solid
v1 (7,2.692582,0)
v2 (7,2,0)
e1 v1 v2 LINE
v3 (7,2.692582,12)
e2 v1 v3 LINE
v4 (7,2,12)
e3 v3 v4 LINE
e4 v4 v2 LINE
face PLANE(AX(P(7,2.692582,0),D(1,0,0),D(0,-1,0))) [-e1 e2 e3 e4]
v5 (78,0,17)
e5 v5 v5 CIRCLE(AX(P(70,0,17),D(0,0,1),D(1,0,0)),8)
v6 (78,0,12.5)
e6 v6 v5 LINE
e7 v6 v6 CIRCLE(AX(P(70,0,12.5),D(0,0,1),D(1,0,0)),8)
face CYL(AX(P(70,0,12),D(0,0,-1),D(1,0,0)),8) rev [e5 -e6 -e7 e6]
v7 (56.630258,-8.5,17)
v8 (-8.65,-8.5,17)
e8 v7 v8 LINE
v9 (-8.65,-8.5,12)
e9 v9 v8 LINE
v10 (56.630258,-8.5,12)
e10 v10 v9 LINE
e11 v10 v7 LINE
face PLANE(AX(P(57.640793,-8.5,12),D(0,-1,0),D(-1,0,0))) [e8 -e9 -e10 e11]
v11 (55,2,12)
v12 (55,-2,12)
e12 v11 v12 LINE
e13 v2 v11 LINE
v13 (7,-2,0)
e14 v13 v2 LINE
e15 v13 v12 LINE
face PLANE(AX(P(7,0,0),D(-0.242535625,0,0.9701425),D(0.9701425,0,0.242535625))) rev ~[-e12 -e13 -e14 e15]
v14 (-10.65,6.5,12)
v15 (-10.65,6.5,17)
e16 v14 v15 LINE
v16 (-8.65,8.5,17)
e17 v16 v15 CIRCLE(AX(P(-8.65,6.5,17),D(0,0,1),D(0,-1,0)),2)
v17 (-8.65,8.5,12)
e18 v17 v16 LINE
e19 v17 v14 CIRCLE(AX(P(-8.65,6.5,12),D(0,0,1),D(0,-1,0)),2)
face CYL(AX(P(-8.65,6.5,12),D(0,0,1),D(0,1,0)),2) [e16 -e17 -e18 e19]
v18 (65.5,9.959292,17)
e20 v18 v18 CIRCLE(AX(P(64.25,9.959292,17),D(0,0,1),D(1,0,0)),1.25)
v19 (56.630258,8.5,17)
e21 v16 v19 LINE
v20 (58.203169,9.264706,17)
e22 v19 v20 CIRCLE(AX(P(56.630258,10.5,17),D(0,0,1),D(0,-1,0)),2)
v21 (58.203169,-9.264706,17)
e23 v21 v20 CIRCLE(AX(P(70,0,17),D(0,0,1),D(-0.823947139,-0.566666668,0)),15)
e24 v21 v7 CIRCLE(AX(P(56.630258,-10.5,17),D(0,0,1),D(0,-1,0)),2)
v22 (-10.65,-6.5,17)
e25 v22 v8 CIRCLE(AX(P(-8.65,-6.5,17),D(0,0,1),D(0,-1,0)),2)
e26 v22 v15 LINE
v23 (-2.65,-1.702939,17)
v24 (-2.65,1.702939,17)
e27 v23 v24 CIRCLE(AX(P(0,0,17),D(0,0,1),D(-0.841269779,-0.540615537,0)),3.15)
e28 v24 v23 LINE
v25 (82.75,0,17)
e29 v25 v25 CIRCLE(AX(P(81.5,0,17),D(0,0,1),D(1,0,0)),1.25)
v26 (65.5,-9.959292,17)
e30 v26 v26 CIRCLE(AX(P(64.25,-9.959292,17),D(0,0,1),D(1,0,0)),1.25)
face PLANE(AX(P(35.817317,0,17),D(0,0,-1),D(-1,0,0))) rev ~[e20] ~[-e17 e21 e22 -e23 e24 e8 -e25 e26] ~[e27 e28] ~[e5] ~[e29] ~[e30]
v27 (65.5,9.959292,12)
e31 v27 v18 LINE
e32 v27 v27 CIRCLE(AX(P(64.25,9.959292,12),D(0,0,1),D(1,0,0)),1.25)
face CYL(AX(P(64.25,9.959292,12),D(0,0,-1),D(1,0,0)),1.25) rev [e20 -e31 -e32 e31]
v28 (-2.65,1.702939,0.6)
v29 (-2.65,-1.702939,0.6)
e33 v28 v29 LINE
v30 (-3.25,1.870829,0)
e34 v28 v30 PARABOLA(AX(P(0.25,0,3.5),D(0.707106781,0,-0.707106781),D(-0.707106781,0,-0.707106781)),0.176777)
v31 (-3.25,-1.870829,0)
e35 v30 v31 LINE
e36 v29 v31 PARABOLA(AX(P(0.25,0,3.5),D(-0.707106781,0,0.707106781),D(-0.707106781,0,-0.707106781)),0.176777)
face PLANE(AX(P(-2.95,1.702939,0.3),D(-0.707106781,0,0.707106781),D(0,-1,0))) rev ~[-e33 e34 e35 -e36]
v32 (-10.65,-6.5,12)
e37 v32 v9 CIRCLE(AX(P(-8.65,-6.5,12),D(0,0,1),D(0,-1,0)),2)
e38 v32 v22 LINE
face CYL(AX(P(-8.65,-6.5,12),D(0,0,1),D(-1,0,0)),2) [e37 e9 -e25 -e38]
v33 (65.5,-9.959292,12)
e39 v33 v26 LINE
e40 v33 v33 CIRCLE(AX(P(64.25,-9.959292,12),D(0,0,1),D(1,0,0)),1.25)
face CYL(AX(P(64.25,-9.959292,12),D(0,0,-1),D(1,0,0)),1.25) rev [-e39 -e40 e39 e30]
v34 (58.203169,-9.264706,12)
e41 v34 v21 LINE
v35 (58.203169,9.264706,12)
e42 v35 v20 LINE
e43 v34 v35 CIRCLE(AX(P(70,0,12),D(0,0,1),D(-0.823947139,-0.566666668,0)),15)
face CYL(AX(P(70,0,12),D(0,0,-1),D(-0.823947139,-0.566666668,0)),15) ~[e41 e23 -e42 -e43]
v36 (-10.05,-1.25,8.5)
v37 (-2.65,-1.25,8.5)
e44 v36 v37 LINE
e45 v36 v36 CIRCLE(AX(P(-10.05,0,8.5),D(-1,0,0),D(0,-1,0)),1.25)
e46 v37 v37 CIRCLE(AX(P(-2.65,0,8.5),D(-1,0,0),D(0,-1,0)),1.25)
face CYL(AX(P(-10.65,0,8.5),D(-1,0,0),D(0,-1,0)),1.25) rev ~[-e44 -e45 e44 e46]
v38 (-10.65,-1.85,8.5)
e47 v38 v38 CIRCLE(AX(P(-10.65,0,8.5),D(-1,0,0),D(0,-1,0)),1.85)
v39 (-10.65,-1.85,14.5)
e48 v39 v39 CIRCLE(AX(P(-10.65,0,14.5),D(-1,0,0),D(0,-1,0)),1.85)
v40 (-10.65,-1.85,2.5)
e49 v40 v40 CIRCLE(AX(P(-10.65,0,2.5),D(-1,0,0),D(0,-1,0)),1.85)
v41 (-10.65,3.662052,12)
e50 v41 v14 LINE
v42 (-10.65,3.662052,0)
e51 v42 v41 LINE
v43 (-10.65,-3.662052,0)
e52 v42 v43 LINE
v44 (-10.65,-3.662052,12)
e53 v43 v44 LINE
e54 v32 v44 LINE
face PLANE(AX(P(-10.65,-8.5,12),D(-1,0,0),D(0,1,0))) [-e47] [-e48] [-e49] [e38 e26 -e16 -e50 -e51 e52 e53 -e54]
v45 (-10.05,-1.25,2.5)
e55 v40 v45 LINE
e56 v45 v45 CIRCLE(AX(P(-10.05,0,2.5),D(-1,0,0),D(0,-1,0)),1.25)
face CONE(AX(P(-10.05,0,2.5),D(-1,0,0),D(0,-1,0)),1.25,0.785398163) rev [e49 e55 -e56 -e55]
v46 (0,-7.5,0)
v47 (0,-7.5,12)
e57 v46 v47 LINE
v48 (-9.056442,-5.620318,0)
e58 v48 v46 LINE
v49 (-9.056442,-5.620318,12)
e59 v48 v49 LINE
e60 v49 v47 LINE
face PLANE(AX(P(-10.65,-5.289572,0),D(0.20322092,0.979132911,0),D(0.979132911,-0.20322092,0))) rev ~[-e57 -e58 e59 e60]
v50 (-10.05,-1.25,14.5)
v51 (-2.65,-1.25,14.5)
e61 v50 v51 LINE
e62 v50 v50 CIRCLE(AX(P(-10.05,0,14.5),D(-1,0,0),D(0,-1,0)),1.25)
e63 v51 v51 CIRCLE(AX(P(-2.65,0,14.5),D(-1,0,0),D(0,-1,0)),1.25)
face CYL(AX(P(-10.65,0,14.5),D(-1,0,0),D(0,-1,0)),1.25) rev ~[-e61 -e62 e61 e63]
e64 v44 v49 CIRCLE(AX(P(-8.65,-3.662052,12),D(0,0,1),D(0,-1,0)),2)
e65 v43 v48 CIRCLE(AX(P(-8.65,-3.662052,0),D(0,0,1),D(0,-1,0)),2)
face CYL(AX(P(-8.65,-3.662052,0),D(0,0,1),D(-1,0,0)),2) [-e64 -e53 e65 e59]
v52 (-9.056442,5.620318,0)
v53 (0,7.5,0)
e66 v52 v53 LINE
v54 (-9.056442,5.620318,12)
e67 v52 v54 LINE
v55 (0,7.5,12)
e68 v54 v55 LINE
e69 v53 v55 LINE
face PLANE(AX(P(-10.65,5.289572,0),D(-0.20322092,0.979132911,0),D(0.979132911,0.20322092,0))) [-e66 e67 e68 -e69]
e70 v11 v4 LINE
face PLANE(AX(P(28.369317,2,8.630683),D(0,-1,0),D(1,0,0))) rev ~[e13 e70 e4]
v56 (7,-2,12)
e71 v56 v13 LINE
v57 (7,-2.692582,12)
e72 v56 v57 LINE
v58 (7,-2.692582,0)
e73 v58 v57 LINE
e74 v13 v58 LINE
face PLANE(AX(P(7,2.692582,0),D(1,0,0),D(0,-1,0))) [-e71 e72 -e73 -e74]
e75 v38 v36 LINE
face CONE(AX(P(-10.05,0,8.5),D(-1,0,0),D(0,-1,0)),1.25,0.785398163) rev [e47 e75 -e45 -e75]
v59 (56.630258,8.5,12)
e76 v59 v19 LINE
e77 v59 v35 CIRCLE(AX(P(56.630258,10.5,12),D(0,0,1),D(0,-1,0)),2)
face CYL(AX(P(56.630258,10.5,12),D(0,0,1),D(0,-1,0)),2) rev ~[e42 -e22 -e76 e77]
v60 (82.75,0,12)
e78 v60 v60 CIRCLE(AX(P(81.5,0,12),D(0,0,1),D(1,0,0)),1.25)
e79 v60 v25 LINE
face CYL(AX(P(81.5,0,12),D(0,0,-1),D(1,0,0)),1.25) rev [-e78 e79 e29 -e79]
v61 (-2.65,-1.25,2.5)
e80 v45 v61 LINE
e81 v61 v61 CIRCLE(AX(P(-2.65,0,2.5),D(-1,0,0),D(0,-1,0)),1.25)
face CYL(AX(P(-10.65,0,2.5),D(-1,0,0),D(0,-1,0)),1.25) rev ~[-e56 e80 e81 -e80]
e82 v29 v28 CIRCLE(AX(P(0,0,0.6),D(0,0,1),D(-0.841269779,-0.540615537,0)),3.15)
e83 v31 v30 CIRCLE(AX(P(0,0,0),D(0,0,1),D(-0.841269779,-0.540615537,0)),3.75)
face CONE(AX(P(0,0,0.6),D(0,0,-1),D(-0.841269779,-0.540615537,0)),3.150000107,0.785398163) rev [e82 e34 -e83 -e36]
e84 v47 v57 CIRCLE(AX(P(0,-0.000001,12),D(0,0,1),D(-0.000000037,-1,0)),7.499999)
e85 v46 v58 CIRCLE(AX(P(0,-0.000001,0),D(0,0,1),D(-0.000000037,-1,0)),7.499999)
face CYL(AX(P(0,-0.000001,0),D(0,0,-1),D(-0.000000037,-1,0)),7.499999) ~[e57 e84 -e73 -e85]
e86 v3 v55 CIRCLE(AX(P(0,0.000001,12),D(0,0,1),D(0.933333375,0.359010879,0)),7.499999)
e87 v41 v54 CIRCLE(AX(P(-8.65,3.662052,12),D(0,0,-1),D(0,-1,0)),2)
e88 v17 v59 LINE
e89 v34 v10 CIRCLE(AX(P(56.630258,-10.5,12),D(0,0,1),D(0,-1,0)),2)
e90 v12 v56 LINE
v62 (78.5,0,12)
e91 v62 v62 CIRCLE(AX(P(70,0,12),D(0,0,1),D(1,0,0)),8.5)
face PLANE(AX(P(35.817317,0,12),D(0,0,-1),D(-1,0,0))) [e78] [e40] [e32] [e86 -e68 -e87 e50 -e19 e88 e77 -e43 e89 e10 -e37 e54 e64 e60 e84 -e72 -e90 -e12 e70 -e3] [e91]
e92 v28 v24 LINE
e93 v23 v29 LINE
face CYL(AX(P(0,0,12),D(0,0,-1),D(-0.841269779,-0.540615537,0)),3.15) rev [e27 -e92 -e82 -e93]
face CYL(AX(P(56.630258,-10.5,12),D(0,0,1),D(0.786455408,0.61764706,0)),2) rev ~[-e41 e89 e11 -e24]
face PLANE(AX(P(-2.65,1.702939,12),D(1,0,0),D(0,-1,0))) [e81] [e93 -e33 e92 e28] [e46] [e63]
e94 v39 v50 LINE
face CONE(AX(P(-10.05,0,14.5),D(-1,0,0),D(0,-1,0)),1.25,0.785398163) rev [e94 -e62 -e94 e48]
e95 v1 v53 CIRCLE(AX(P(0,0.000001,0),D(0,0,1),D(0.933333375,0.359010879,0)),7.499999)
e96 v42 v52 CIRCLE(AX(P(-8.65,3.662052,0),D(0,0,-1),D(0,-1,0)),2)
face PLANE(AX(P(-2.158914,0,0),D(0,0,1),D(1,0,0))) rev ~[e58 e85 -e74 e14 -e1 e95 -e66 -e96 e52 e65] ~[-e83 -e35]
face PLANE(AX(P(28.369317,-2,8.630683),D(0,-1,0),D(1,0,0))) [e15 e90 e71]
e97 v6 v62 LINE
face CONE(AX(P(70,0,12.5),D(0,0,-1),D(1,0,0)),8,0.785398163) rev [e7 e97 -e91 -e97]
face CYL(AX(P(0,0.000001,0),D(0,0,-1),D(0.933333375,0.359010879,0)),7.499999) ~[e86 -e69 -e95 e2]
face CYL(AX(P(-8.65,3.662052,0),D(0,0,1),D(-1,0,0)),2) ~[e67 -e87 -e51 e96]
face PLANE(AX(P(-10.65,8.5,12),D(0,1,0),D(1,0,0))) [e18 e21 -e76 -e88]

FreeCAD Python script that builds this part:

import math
import FreeCAD as App
import Part
import Sketcher

V = App.Vector
Q = App.Units.Quantity


def edges_at(feature, points):
    """Names of the edges that pass closest to the given points."""
    edges = feature.Shape.Edges
    near = lambda p: min(range(len(edges)), key=lambda i: edges[i].distToShape(Part.Vertex(*p))[0])
    return sorted({f"Edge{near(p) + 1}" for p in points})

doc = App.newDocument("Part")
body = doc.addObject("PartDesign::Body", "Body")

sketch1 = body.newObject("Sketcher::SketchObject", "Sketch")
sketch1.AttachmentSupport = (doc.getObject("XY_Plane"), [""])
sketch1.MapMode = "FlatFace"
sketch1.addGeometry([
    Part.ArcOfCircle(Part.Circle(V(0, 0, 0), V(0, 0, 1), 7.5), math.radians(-90), math.radians(-21)),
    Part.LineSegment(V(7, -2.7, 0), V(7, 2.7, 0)),
    Part.ArcOfCircle(Part.Circle(V(0, 0, 0), V(0, 0, 1), 7.5), math.radians(21), math.radians(90)),
    Part.LineSegment(V(0, 7.5, 0), V(-10.7, 5.3, 0)),
    Part.LineSegment(V(-10.7, 5.3, 0), V(-10.7, -5.3, 0)),
    Part.LineSegment(V(-10.7, -5.3, 0), V(0, -7.5, 0)),
    Part.ArcOfCircle(Part.Circle(V(0, 0, 0), V(0, 0, 1), 3.2), math.radians(-147), math.radians(147)),
    Part.LineSegment(V(-2.6, -1.7, 0), V(-2.6, 1.7, 0)),
], False)
sketch1.addConstraint([
    Sketcher.Constraint("Coincident", 0, 2, 1, 1),
    Sketcher.Constraint("Coincident", 1, 2, 2, 1),
    Sketcher.Constraint("Coincident", 2, 2, 3, 1),
    Sketcher.Constraint("Coincident", 3, 2, 4, 1),
    Sketcher.Constraint("Coincident", 4, 2, 5, 1),
    Sketcher.Constraint("Coincident", 5, 2, 0, 1),
    Sketcher.Constraint("Coincident", 6, 1, 7, 1),
    Sketcher.Constraint("Coincident", 7, 2, 6, 2),
    Sketcher.Constraint("Vertical", 1),
    Sketcher.Constraint("Vertical", 4),
    Sketcher.Constraint("Vertical", 7),
    Sketcher.Constraint("Coincident", 0, 3, -1, 1),
    Sketcher.Constraint("Coincident", 2, 3, -1, 1),
    Sketcher.Constraint("Coincident", 6, 3, -1, 1),
    Sketcher.Constraint("Equal", 0, 2),
    Sketcher.Constraint("PointOnObject", 2, 2, -2),
    Sketcher.Constraint("PointOnObject", 5, 2, -2),
    Sketcher.Constraint("Equal", 3, 5),
    Sketcher.Constraint("Radius", 0, Q("7.499999 mm")),
    Sketcher.Constraint("Radius", 6, Q("3.15 mm")),
    Sketcher.Constraint("DistanceX", -1, 1, 0, 2, Q("7 mm")),
    Sketcher.Constraint("DistanceX", 4, 2, 6, 1, Q("8 mm")),
    Sketcher.Constraint("DistanceX", 3, 2, -1, 1, Q("10.65 mm")),
    Sketcher.Constraint("Distance", 3, Q("10.876971 mm")),
])
pad1 = body.newObject("PartDesign::Pad", "Pad")
pad1.Profile = sketch1
pad1.Length = 12

sketch2 = body.newObject("Sketcher::SketchObject", "Sketch001")
sketch2.AttachmentSupport = (doc.getObject("XY_Plane"), [""])
sketch2.MapMode = "FlatFace"
sketch2.AttachmentOffset = App.Placement(V(0, 0, 12), App.Rotation())
sketch2.addGeometry([
    Part.LineSegment(V(57.6, 8.5, 0), V(-10.7, 8.5, 0)),
    Part.LineSegment(V(-10.7, 8.5, 0), V(-10.7, -8.5, 0)),
    Part.LineSegment(V(-10.7, -8.5, 0), V(57.6, -8.5, 0)),
    Part.ArcOfCircle(Part.Circle(V(70, 0, 0), V(0, 0, 1), 15), math.radians(-145), math.radians(145)),
    Part.Circle(V(64.2, -10, 0), V(0, 0, 1), 1.2),
    Part.Circle(V(81.5, 0, 0), V(0, 0, 1), 1.2),
    Part.Circle(V(70, 0, 0), V(0, 0, 1), 8),
    Part.Circle(V(64.2, 10, 0), V(0, 0, 1), 1.2),
    Part.LineSegment(V(-2.6, -1.7, 0), V(-2.6, 1.7, 0)),
    Part.ArcOfCircle(Part.Circle(V(0, 0, 0), V(0, 0, 1), 3.2), math.radians(-147), math.radians(147)),
], False)
sketch2.addConstraint([
    Sketcher.Constraint("Coincident", 0, 2, 1, 1),
    Sketcher.Constraint("Coincident", 1, 2, 2, 1),
    Sketcher.Constraint("Coincident", 2, 2, 3, 1),
    Sketcher.Constraint("Coincident", 3, 2, 0, 1),
    Sketcher.Constraint("Coincident", 8, 1, 9, 1),
    Sketcher.Constraint("Coincident", 9, 2, 8, 2),
    Sketcher.Constraint("Horizontal", 0),
    Sketcher.Constraint("Vertical", 1),
    Sketcher.Constraint("Horizontal", 2),
    Sketcher.Constraint("Vertical", 8),
    Sketcher.Constraint("Coincident", 9, 3, -1, 1),
    Sketcher.Constraint("Coincident", 6, 3, 3, 3),
    Sketcher.Constraint("Equal", 4, 5),
    Sketcher.Constraint("Equal", 5, 7),
    Sketcher.Constraint("Symmetric", 4, 3, 7, 3, -1),
    Sketcher.Constraint("Symmetric", 2, 2, 3, 2, -1),
    Sketcher.Constraint("PointOnObject", 5, 3, -1),
    Sketcher.Constraint("Diameter", 6, Q("16 mm")),
    Sketcher.Constraint("Radius", 3, Q("15 mm")),
    Sketcher.Constraint("Diameter", 4, Q("2.5 mm")),
    Sketcher.Constraint("DistanceY", 1, 2, 1, 1, Q("17 mm")),
    Sketcher.Constraint("Radius", 9, Q("3.15 mm")),
    Sketcher.Constraint("DistanceX", -1, 1, 3, 3, Q("70 mm")),
    Sketcher.Constraint("DistanceX", 1, 2, 8, 1, Q("8 mm")),
    Sketcher.Constraint("DistanceX", -1, 1, 5, 3, Q("81.5 mm")),
    Sketcher.Constraint("DistanceX", 0, 2, 7, 3, Q("74.9 mm")),
    Sketcher.Constraint("DistanceX", -1, 1, 4, 3, Q("64.25 mm")),
    Sketcher.Constraint("DistanceY", 0, 2, 7, 3, Q("1.459292 mm")),
])
pad2 = body.newObject("PartDesign::Pad", "Pad001")
pad2.Profile = sketch2
pad2.Length = 5

sketch3 = body.newObject("Sketcher::SketchObject", "Sketch002")
sketch3.AttachmentSupport = (doc.getObject("YZ_Plane"), [""])
sketch3.MapMode = "FlatFace"
sketch3.AttachmentOffset = App.Placement(V(0, 0, -10.65), App.Rotation())
sketch3.addGeometry([
    Part.Circle(V(0, 14.5, 0), V(0, 0, 1), 1.2),
    Part.Circle(V(0, 8.5, 0), V(0, 0, 1), 1.2),
    Part.Circle(V(0, 2.5, 0), V(0, 0, 1), 1.2),
], False)
sketch3.addConstraint([
    Sketcher.Constraint("Equal", 0, 1),
    Sketcher.Constraint("Equal", 1, 2),
    Sketcher.Constraint("PointOnObject", 0, 3, -2),
    Sketcher.Constraint("PointOnObject", 1, 3, -2),
    Sketcher.Constraint("PointOnObject", 2, 3, -2),
    Sketcher.Constraint("Diameter", 0, Q("2.5 mm")),
    Sketcher.Constraint("DistanceY", 1, 3, 0, 3, Q("6 mm")),
    Sketcher.Constraint("DistanceY", 2, 3, 1, 3, Q("6 mm")),
    Sketcher.Constraint("DistanceY", -1, 1, 0, 3, Q("14.5 mm")),
])
pocket1 = body.newObject("PartDesign::Pocket", "Pocket")
pocket1.Profile = sketch3
pocket1.Length = 8
pocket1.Reversed = True

sketch4 = body.newObject("Sketcher::SketchObject", "Sketch003")
sketch4.AttachmentSupport = (doc.getObject("XZ_Plane"), [""])
sketch4.MapMode = "FlatFace"
sketch4.addGeometry([
    Part.LineSegment(V(55, 12, 0), V(7, 0, 0)),
    Part.LineSegment(V(7, 0, 0), V(7, 12, 0)),
    Part.LineSegment(V(7, 12, 0), V(55, 12, 0)),
], False)
sketch4.addConstraint([
    Sketcher.Constraint("Coincident", 0, 2, 1, 1),
    Sketcher.Constraint("Coincident", 1, 2, 2, 1),
    Sketcher.Constraint("Coincident", 2, 2, 0, 1),
    Sketcher.Constraint("Vertical", 1),
    Sketcher.Constraint("Horizontal", 2),
    Sketcher.Constraint("PointOnObject", 0, 2, -1),
    Sketcher.Constraint("DistanceX", 2, 1, 2, 2, Q("48 mm")),
    Sketcher.Constraint("DistanceY", 1, 1, 1, 2, Q("12 mm")),
    Sketcher.Constraint("DistanceX", -1, 1, 0, 2, Q("7 mm")),
])
pad3 = body.newObject("PartDesign::Pad", "Pad002")
pad3.Profile = sketch4
pad3.Length = 4
pad3.Midplane = True
doc.recompute()

fillet = body.newObject("PartDesign::Fillet", "Fillet")
fillet.Base = (pad3, edges_at(pad3, [
    (-10.65, 8.5, 14.5),
    (-10.65, 5.29, 6),
    (-10.65, -5.29, 6),
    (-10.65, -8.5, 14.5),
]))
fillet.Radius = 2
doc.recompute()

chamfer = body.newObject("PartDesign::Chamfer", "Chamfer")
chamfer.Base = (fillet, edges_at(fillet, [(3.15, 0, 0), (-2.65, 0, 0)]))
chamfer.Size = 0.6
doc.recompute()

chamfer2 = body.newObject("PartDesign::Chamfer", "Chamfer001")
chamfer2.Base = (chamfer, edges_at(chamfer, [(62, 0, 12)]))
chamfer2.Size = 0.5
doc.recompute()

fillet2 = body.newObject("PartDesign::Fillet", "Fillet001")
fillet2.Base = (chamfer2, edges_at(chamfer2, [(57.641, 8.5, 14.5)]))
fillet2.Radius = 2
doc.recompute()

fillet3 = body.newObject("PartDesign::Fillet", "Fillet002")
fillet3.Base = (fillet2, edges_at(fillet2, [(57.641, -8.5, 14.5)]))
fillet3.Radius = 2
doc.recompute()

chamfer3 = body.newObject("PartDesign::Chamfer", "Chamfer002")
chamfer3.Base = (fillet3, edges_at(fillet3, [(-10.65, 1.25, 2.5), (-10.65, 1.25, 8.5), (-10.65, 1.25, 14.5)]))
chamfer3.Size = 0.6

doc.recompute()
